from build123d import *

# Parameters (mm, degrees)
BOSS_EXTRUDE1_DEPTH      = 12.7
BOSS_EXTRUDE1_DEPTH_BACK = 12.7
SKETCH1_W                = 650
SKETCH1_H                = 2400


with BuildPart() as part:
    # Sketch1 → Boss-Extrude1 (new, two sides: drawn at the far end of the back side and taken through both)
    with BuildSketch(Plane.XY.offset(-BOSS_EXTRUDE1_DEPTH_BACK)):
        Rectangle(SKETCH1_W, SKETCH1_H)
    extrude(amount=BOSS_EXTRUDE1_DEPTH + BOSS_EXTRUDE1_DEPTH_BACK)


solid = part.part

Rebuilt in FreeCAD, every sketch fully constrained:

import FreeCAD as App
import Part
import Sketcher
from FreeCAD import Vector


def add_polygon(sketch, points):
    """Adds a closed chain of lines whose ends are joined by coincident constraints."""
    first, n = sketch.GeometryCount, len(points)
    for a, b in zip(points, points[1:] + points[:1]):
        sketch.addGeometry(Part.LineSegment(App.Vector(*a, 0), App.Vector(*b, 0)), False)
    for i in range(n):
        sketch.addConstraint(Sketcher.Constraint("Coincident", first + i, 2, first + (i + 1) % n, 1))

doc = App.newDocument("Part")
body = doc.addObject("PartDesign::Body", "Body")

# Sketch on XY plane
sketch1 = body.newObject("Sketcher::SketchObject", "Sketch")
sketch1.AttachmentSupport = (doc.getObject("XY_Plane"), [""])
sketch1.MapMode = "FlatFace"
add_polygon(sketch1, [(-325, 1200), (-325, -1200), (325, -1200), (325, 1200)])  # lines 0-3
sketch1.addConstraint(Sketcher.Constraint("Vertical", 0))
sketch1.addConstraint(Sketcher.Constraint("Horizontal", 1))
sketch1.addConstraint(Sketcher.Constraint("Vertical", 2))
sketch1.addConstraint(Sketcher.Constraint("Horizontal", 3))
sketch1.addConstraint(Sketcher.Constraint("Symmetric", 0, 2, 2, 2, -1, 1))
sketch1.addConstraint(Sketcher.Constraint("DistanceX", 1, 1, 1, 2, 650.0))
sketch1.addConstraint(Sketcher.Constraint("DistanceY", 0, 2, 0, 1, 2400.0))
pad1 = body.newObject("PartDesign::Pad", "Pad")
pad1.Profile = sketch1
pad1.Type = "TwoLengths"
pad1.Length = 12.7
pad1.Length2 = 12.7

doc.recompute()
